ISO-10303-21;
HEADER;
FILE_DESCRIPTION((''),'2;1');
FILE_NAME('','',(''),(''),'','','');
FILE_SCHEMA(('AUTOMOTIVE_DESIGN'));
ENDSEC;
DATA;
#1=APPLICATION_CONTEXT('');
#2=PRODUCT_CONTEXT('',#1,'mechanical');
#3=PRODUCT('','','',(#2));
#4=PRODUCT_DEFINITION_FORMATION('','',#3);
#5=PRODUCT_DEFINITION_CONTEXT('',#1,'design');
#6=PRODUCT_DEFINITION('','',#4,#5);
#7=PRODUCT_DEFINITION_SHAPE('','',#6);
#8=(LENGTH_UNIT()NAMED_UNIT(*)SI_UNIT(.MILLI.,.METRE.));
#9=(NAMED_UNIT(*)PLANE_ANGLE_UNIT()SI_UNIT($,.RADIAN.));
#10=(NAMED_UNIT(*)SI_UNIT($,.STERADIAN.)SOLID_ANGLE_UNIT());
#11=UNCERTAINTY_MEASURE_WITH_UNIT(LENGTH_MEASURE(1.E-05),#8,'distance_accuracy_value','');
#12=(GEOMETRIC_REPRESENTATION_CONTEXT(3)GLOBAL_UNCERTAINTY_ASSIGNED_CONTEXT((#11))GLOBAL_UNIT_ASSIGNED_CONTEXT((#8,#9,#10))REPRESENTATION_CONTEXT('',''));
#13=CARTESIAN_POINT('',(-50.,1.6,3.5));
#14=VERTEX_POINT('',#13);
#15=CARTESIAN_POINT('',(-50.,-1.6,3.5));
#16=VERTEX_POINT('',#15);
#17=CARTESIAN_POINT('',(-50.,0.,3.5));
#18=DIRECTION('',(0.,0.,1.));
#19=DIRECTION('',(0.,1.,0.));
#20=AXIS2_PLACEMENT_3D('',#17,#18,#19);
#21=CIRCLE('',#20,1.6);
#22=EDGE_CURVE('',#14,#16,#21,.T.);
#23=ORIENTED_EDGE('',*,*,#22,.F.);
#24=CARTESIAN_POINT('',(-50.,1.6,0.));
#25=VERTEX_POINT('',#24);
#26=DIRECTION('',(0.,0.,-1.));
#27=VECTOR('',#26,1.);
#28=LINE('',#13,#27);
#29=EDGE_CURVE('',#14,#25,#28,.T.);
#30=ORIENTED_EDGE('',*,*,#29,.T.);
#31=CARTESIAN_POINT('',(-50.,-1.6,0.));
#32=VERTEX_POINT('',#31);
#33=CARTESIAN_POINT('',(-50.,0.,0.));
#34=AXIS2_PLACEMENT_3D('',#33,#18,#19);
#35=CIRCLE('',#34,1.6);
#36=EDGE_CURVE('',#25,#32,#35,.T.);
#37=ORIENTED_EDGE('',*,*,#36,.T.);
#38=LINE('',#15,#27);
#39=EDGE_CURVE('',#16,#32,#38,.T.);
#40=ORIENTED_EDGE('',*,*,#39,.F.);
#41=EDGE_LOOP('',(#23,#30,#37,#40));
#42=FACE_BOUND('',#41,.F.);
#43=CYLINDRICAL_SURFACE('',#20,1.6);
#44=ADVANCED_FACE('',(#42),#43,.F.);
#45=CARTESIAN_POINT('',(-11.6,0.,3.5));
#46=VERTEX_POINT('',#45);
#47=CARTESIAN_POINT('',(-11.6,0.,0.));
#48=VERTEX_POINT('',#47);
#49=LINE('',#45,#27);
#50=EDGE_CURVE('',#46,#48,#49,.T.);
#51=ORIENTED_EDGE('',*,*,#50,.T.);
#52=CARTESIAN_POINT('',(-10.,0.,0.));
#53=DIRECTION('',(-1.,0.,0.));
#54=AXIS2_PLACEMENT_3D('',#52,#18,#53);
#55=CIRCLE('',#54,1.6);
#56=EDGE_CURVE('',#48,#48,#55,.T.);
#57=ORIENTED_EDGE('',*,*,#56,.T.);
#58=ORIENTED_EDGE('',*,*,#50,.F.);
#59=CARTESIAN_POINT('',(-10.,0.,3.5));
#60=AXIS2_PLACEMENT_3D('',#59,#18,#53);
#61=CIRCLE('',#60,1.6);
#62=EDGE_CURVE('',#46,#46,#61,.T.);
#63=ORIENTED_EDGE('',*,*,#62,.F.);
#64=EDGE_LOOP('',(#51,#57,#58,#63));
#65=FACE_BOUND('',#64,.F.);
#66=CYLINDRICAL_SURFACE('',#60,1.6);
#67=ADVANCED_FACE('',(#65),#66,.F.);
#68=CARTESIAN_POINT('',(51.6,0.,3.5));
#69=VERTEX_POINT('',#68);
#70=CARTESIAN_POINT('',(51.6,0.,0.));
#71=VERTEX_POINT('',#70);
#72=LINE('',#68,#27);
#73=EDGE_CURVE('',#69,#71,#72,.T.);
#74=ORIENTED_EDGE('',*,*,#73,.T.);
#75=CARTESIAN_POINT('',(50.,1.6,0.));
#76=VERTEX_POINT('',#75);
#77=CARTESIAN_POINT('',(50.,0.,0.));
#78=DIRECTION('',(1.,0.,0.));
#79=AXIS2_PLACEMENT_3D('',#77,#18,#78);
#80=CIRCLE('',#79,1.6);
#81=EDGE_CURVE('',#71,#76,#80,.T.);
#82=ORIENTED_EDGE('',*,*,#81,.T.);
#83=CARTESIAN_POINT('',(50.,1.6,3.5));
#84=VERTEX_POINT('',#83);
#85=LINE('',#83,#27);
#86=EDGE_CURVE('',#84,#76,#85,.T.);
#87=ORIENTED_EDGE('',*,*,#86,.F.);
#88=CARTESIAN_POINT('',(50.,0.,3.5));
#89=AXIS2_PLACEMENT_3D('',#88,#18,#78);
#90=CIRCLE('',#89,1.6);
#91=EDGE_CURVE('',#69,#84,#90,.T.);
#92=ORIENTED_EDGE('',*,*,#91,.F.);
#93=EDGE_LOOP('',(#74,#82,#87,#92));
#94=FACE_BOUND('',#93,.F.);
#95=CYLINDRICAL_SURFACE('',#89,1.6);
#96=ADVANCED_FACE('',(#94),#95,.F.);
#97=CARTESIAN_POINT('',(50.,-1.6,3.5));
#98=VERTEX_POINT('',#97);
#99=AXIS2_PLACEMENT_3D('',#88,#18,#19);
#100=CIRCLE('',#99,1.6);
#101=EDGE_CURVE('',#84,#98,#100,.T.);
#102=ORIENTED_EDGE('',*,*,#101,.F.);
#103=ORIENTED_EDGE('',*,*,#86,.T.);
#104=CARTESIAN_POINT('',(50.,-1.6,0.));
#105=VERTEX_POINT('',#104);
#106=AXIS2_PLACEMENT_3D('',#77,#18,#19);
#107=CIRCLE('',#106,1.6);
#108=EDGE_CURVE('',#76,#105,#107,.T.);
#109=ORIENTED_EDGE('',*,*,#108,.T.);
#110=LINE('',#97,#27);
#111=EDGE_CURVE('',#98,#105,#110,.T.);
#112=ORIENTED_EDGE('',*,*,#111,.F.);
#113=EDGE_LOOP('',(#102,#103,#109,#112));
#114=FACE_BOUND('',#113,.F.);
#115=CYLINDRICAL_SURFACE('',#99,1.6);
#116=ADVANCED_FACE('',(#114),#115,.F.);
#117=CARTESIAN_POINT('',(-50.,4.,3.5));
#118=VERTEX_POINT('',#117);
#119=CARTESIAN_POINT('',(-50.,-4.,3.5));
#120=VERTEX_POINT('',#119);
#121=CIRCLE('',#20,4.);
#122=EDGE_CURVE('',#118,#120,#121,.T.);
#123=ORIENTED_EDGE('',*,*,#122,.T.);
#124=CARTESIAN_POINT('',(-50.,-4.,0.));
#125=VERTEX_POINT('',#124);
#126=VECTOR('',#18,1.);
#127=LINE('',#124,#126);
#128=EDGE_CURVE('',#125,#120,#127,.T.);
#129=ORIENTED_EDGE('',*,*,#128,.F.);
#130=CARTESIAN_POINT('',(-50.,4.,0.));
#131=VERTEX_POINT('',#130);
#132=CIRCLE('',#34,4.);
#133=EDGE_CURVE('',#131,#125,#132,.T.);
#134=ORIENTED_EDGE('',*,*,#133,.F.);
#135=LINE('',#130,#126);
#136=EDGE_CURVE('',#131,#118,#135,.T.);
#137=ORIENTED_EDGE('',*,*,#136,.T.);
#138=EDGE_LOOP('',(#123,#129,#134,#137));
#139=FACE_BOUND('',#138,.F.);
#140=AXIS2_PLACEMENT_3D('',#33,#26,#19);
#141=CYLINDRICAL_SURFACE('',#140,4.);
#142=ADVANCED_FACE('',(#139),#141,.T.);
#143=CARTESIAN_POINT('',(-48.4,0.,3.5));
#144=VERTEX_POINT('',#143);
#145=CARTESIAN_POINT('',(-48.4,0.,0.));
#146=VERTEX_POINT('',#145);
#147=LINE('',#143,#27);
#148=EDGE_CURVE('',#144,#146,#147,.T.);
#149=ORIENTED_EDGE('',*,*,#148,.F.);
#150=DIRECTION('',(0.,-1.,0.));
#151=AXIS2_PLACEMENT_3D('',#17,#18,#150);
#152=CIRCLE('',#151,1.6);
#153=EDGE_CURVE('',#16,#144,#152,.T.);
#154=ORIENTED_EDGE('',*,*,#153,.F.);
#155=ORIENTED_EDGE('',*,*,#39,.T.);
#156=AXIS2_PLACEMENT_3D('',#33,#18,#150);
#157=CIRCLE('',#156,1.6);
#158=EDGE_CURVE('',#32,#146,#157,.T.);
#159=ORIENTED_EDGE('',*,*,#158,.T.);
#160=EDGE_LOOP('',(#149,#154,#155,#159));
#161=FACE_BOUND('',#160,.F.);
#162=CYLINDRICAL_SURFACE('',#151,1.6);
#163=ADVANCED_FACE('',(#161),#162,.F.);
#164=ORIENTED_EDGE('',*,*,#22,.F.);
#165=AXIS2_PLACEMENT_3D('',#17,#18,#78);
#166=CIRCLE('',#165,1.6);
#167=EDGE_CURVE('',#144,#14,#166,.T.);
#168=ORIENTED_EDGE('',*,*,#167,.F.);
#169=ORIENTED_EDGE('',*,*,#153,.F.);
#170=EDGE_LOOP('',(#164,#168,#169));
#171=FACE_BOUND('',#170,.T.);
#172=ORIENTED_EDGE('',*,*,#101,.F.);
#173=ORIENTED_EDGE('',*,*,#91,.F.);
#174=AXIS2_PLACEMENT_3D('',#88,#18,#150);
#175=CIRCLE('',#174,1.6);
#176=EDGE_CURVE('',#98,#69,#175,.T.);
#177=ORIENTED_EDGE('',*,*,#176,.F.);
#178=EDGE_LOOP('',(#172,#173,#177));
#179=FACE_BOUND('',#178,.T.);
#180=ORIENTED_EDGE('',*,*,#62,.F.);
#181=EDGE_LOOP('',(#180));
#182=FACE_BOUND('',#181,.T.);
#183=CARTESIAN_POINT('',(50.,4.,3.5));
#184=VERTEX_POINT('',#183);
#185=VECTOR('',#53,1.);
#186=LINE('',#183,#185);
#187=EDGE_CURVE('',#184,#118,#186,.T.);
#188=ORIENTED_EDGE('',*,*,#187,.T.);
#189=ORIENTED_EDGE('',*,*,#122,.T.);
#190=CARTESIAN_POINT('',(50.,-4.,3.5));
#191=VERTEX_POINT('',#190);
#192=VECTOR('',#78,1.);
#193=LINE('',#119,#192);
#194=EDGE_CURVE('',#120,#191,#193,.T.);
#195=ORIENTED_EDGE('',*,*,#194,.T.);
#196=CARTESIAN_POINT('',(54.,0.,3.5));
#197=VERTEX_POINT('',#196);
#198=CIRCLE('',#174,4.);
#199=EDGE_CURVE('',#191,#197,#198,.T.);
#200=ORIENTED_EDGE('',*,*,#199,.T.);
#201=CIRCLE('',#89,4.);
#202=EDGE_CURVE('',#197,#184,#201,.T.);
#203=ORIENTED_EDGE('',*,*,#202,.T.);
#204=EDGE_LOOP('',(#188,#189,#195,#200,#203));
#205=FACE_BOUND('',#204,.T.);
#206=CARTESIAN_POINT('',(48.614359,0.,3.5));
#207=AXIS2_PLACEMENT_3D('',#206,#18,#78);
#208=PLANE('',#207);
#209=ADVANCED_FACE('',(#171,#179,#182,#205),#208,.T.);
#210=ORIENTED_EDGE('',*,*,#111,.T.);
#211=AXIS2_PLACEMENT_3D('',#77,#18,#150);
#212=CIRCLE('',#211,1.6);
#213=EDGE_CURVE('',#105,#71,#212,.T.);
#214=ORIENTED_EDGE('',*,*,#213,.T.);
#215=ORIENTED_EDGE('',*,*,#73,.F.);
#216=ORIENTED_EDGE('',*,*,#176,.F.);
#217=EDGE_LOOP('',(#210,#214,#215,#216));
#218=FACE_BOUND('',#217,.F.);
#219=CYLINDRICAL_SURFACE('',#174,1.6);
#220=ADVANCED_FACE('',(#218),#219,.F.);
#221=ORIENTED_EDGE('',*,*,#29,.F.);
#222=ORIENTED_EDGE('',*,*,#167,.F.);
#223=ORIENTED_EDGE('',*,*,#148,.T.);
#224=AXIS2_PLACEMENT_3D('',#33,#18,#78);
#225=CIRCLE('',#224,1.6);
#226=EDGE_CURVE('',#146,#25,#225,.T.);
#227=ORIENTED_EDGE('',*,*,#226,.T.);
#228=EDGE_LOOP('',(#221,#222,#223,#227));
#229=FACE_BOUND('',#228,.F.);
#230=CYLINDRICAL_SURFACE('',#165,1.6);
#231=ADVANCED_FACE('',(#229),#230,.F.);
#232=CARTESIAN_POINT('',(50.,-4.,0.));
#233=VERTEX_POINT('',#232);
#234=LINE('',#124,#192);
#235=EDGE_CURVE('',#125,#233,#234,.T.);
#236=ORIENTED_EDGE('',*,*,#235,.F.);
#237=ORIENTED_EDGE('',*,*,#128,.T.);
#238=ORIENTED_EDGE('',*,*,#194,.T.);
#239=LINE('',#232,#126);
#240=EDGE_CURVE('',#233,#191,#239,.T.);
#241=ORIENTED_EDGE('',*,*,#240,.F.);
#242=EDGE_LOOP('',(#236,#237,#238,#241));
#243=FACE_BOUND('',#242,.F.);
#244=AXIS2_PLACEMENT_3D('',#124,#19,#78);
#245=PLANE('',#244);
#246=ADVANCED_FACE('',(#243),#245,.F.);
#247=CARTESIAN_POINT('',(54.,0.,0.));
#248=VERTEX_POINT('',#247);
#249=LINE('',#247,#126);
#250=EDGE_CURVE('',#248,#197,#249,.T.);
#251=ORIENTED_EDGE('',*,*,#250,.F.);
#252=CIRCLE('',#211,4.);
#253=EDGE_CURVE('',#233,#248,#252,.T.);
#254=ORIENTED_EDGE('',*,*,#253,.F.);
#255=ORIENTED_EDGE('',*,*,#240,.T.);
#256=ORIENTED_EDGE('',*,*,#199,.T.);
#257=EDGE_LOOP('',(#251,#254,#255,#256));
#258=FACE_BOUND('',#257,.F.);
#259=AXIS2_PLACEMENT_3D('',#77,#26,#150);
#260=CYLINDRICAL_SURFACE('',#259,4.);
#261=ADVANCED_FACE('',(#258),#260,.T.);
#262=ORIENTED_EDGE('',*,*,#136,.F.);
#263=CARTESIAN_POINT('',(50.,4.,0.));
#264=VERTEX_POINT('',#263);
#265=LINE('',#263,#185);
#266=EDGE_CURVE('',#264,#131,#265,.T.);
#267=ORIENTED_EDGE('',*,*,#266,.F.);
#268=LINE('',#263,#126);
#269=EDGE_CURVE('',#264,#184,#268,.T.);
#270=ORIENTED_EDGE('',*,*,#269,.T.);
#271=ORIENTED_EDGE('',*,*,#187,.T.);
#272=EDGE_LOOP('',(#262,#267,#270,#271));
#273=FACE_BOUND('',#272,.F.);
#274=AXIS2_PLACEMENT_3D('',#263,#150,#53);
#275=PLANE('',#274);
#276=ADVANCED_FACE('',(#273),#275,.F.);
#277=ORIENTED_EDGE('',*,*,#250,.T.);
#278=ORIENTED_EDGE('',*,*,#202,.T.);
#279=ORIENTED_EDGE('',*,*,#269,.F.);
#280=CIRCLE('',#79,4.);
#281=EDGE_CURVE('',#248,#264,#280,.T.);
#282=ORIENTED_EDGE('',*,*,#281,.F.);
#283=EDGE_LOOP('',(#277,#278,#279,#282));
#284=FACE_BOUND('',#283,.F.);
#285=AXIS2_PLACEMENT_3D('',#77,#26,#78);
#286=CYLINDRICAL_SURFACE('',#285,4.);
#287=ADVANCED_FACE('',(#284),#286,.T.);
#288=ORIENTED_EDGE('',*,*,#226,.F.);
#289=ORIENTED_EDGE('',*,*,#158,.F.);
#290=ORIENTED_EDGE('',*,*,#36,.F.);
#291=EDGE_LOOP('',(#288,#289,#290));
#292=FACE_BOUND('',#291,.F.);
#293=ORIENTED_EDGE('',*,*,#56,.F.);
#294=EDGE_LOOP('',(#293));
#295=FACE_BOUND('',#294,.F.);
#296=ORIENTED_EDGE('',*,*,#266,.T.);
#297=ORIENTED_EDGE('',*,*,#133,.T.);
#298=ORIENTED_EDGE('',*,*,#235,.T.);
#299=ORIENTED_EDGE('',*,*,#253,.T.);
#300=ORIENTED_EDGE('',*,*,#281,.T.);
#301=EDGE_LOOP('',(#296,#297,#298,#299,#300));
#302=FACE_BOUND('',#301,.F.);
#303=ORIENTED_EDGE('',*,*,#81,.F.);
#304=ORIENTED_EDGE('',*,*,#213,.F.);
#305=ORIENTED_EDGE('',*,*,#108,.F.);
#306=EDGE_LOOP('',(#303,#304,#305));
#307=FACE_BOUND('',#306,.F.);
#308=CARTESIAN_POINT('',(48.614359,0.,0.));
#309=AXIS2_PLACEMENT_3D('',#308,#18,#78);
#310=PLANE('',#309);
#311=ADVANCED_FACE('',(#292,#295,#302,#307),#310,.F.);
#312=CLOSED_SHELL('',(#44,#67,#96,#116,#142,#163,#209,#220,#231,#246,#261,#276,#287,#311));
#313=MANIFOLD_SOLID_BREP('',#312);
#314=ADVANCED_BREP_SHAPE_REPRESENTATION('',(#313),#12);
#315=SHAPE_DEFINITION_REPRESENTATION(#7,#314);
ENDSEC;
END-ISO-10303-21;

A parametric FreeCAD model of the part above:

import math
import FreeCAD as App
import Part
import Sketcher

V = App.Vector
Q = App.Units.Quantity

doc = App.newDocument("Part")
body = doc.addObject("PartDesign::Body", "Body")

sketch1 = body.newObject("Sketcher::SketchObject", "Sketch")
sketch1.AttachmentSupport = (doc.getObject("XY_Plane"), [""])
sketch1.MapMode = "FlatFace"
sketch1.addGeometry([
    Part.LineSegment(V(50, 4, 0), V(-50, 4, 0)),
    Part.ArcOfCircle(Part.Circle(V(-50, 0, 0), V(0, 0, 1), 4), math.radians(90), math.radians(270)),
    Part.LineSegment(V(-50, -4, 0), V(50, -4, 0)),
    Part.ArcOfCircle(Part.Circle(V(50, 0, 0), V(0, 0, 1), 4), math.radians(-90), math.radians(0)),
    Part.ArcOfCircle(Part.Circle(V(50, 0, 0), V(0, 0, 1), 4), math.radians(0), math.radians(90)),
], False)
sketch1.addConstraint([
    Sketcher.Constraint("Tangent", 0, 2, 1, 1),
    Sketcher.Constraint("Tangent", 1, 2, 2, 1),
    Sketcher.Constraint("Tangent", 2, 2, 3, 1),
    Sketcher.Constraint("Tangent", 3, 2, 4, 1),
    Sketcher.Constraint("Tangent", 4, 2, 0, 1),
    Sketcher.Constraint("Horizontal", 0),
    Sketcher.Constraint("Horizontal", 2),
    Sketcher.Constraint("Equal", 1, 3),
    Sketcher.Constraint("Symmetric", 1, 3, 3, 3, -1, 1),
    Sketcher.Constraint("PointOnObject", 3, 2, -1),
    Sketcher.Constraint("Radius", 1, Q("4 mm")),
    Sketcher.Constraint("DistanceX", 0, 2, 0, 1, Q("100 mm")),
])
pad1 = body.newObject("PartDesign::Pad", "Pad")
pad1.Profile = sketch1
pad1.Length = 3.5

sketch2 = body.newObject("Sketcher::SketchObject", "Sketch001")
sketch2.AttachmentSupport = (doc.getObject("XY_Plane"), [""])
sketch2.MapMode = "FlatFace"
sketch2.AttachmentOffset = App.Placement(V(0, 0, 3.5), App.Rotation())
sketch2.addGeometry([
    Part.ArcOfCircle(Part.Circle(V(-50, 0, 0), V(0, 0, 1), 1.6), math.radians(0), math.radians(90)),
    Part.ArcOfCircle(Part.Circle(V(-50, 0, 0), V(0, 0, 1), 1.6), math.radians(90), math.radians(270)),
    Part.ArcOfCircle(Part.Circle(V(-50, 0, 0), V(0, 0, 1), 1.6), math.radians(-90), math.radians(0)),
    Part.Circle(V(-10, 0, 0), V(0, 0, 1), 1.6),
    Part.ArcOfCircle(Part.Circle(V(50, 0, 0), V(0, 0, 1), 1.6), math.radians(90), math.radians(270)),
    Part.ArcOfCircle(Part.Circle(V(50, 0, 0), V(0, 0, 1), 1.6), math.radians(-90), math.radians(0)),
    Part.ArcOfCircle(Part.Circle(V(50, 0, 0), V(0, 0, 1), 1.6), math.radians(0), math.radians(90)),
], False)
sketch2.addConstraint([
    Sketcher.Constraint("Tangent", 0, 2, 1, 1),
    Sketcher.Constraint("Tangent", 1, 2, 2, 1),
    Sketcher.Constraint("Tangent", 2, 2, 0, 1),
    Sketcher.Constraint("Tangent", 4, 2, 5, 1),
    Sketcher.Constraint("Tangent", 5, 2, 6, 1),
    Sketcher.Constraint("Tangent", 6, 2, 4, 1),
    Sketcher.Constraint("Equal", 2, 3),
    Sketcher.Constraint("Equal", 3, 4),
    Sketcher.Constraint("Symmetric", 0, 3, 4, 3, -1, 1),
    Sketcher.Constraint("Symmetric", 1, 2, 4, 2, -2),
    Sketcher.Constraint("PointOnObject", 3, 3, -1),
    Sketcher.Constraint("PointOnObject", 2, 2, -1),
    Sketcher.Constraint("PointOnObject", 5, 2, -1),
    Sketcher.Constraint("Vertical", 2, 3, 0, 2),
    Sketcher.Constraint("Vertical", 0, 2, 1, 2),
    Sketcher.Constraint("Vertical", 4, 2, 6, 2),
    Sketcher.Constraint("Diameter", 3, Q("3.2 mm")),
    Sketcher.Constraint("DistanceX", 0, 3, -1, 1, Q("50 mm")),
    Sketcher.Constraint("DistanceX", 3, 3, -1, 1, Q("10 mm")),
])
pocket1 = body.newObject("PartDesign::Pocket", "Pocket")
pocket1.Profile = sketch2
pocket1.Type = "ThroughAll"

doc.recompute()
